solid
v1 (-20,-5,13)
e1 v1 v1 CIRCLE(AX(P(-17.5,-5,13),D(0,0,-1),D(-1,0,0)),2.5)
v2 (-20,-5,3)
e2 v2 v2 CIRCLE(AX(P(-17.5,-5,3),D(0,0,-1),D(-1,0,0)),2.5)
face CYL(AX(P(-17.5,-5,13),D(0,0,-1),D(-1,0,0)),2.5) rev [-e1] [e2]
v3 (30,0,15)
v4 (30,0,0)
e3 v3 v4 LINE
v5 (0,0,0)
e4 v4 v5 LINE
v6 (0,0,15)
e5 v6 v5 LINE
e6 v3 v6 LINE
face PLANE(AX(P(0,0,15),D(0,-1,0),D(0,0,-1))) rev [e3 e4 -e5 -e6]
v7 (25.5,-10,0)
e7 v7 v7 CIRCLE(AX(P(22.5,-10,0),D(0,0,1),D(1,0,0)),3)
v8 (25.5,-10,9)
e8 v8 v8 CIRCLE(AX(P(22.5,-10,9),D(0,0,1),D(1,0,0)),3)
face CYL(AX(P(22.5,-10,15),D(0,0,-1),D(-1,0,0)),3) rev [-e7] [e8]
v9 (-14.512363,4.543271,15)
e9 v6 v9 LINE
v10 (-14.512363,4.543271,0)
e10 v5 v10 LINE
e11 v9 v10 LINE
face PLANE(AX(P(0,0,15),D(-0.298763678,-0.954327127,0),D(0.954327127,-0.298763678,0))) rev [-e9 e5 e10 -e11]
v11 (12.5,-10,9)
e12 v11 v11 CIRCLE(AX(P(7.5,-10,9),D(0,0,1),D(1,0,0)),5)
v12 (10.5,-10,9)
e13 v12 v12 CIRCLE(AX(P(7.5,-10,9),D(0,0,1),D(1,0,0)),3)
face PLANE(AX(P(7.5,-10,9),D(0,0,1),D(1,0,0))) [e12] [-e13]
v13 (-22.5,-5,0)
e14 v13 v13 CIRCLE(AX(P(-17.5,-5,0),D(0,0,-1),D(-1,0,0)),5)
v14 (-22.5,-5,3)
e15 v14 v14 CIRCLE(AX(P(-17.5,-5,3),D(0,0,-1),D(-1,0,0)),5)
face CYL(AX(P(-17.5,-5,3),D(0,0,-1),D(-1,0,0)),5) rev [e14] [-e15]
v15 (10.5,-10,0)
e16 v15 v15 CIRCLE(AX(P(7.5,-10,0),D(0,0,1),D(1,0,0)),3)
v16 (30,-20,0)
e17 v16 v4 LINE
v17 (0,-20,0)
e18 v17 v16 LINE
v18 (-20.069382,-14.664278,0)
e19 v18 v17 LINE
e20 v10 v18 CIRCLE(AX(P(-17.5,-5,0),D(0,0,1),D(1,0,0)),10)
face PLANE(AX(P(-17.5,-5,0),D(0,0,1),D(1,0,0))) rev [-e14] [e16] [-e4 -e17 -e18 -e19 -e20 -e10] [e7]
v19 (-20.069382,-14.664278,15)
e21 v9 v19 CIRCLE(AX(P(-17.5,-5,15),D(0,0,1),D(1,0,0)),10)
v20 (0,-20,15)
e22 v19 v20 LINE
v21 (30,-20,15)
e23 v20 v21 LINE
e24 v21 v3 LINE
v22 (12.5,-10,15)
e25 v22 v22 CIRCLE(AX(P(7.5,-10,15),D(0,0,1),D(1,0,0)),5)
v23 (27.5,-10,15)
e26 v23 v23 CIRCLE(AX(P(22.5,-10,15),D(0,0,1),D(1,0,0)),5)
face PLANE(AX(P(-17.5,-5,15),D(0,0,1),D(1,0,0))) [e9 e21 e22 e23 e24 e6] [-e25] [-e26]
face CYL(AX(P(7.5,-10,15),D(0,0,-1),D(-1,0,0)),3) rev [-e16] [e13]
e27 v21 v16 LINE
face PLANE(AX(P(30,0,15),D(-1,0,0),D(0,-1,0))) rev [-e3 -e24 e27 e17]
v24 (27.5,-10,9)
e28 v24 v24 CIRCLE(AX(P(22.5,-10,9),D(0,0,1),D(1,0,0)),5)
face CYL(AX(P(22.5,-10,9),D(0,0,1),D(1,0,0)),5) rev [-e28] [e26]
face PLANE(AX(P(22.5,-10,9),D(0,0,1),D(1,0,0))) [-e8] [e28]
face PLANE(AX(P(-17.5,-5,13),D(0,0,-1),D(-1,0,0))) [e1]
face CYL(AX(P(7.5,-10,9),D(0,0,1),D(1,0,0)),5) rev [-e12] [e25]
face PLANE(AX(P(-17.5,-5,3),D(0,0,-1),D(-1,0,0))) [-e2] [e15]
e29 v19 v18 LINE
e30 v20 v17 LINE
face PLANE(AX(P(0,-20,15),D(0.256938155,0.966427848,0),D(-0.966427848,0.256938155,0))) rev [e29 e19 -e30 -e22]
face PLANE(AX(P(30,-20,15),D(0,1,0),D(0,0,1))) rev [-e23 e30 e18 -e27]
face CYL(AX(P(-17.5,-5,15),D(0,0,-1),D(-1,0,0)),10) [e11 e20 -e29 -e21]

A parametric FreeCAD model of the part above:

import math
import FreeCAD as App
import Part
import Sketcher

V = App.Vector
Q = App.Units.Quantity

doc = App.newDocument("Part")
body = doc.addObject("PartDesign::Body", "Body")

# Sketch on XY plane
sketch1 = body.newObject("Sketcher::SketchObject", "Sketch")
sketch1.AttachmentSupport = (doc.getObject("XY_Plane"), [""])
sketch1.MapMode = "FlatFace"
sketch1.addGeometry([
    Part.LineSegment(V(30, 0, 0), V(0, 0, 0)),  # 0
    Part.LineSegment(V(0, 0, 0), V(-14.512363, 4.543271, 0)),  # 1
    Part.ArcOfCircle(Part.Circle(V(-17.5, -5, 0), V(0, 0, 1), 10), math.radians(72.616638), math.radians(255.11154)),  # 2
    Part.LineSegment(V(-20.069382, -14.664278, 0), V(0, -20, 0)),  # 3
    Part.LineSegment(V(0, -20, 0), V(30, -20, 0)),  # 4
    Part.LineSegment(V(30, -20, 0), V(30, 0, 0)),  # 5
    Part.Circle(V(22.5, -10, 0), V(0, 0, 1), 3),  # 6
    Part.Circle(V(7.5, -10, 0), V(0, 0, 1), 3),  # 7
], False)
sketch1.addConstraint([
    Sketcher.Constraint("Coincident", 0, 2, 1, 1),
    Sketcher.Constraint("Tangent", 1, 2, 2, 1),
    Sketcher.Constraint("Tangent", 2, 2, 3, 1),
    Sketcher.Constraint("Coincident", 3, 2, 4, 1),
    Sketcher.Constraint("Coincident", 4, 2, 5, 1),
    Sketcher.Constraint("Coincident", 5, 2, 0, 1),
    Sketcher.Constraint("Horizontal", 0),
    Sketcher.Constraint("Horizontal", 4),
    Sketcher.Constraint("Vertical", 5),
    Sketcher.Constraint("Coincident", 0, 2, -1, 1),
    Sketcher.Constraint("Equal", 6, 7),
    Sketcher.Constraint("PointOnObject", 3, 2, -2),
    Sketcher.Constraint("Horizontal", 6, 3, 7, 3),
    Sketcher.Constraint("Diameter", 6, Q("6 mm")),
    Sketcher.Constraint("Radius", 2, Q("10 mm")),
    Sketcher.Constraint("DistanceX", 0, 2, 0, 1, Q("30 mm")),
    Sketcher.Constraint("DistanceY", 5, 1, 5, 2, Q("20 mm")),
    Sketcher.Constraint("DistanceY", 2, 3, -1, 1, Q("5 mm")),
    Sketcher.Constraint("DistanceY", 6, 3, -1, 1, Q("10 mm")),
    Sketcher.Constraint("DistanceX", 2, 3, 6, 3, Q("40 mm")),
    Sketcher.Constraint("DistanceX", 7, 3, 6, 3, Q("15 mm")),
    Sketcher.Constraint("DistanceX", 2, 3, -1, 1, Q("17.5 mm")),
])
pad1 = body.newObject("PartDesign::Pad", "Pad")
pad1.Profile = sketch1
pad1.Length = 15

# Sketch on XY plane
sketch2 = body.newObject("Sketcher::SketchObject", "Sketch001")
sketch2.AttachmentSupport = (doc.getObject("XY_Plane"), [""])
sketch2.MapMode = "FlatFace"
sketch2.AttachmentOffset = App.Placement(V(0, 0, 15), App.Rotation())
sketch2.addGeometry([
    Part.Circle(V(7.5, -10, 0), V(0, 0, 1), 5),
    Part.Circle(V(22.5, -10, 0), V(0, 0, 1), 5),
], False)
sketch2.addConstraint([
    Sketcher.Constraint("Equal", 0, 1),
    Sketcher.Constraint("Horizontal", 0, 3, 1, 3),
    Sketcher.Constraint("Diameter", 0, Q("10 mm")),
    Sketcher.Constraint("DistanceY", 0, 3, -1, 1, Q("10 mm")),
    Sketcher.Constraint("DistanceX", 0, 3, 1, 3, Q("15 mm")),
    Sketcher.Constraint("DistanceX", -1, 1, 0, 3, Q("7.5 mm")),
])
pocket1 = body.newObject("PartDesign::Pocket", "Pocket")
pocket1.Profile = sketch2
pocket1.Length = 6

# Sketch on XY plane
sketch3 = body.newObject("Sketcher::SketchObject", "Sketch002")
sketch3.AttachmentSupport = (doc.getObject("XY_Plane"), [""])
sketch3.MapMode = "FlatFace"
sketch3.addGeometry(Part.Circle(V(-17.5, -5, 0), V(0, 0, 1), 5), False)
sketch3.addConstraint([
    Sketcher.Constraint("Diameter", 0, Q("10 mm")),
    Sketcher.Constraint("DistanceY", 0, 3, -1, 1, Q("5 mm")),
    Sketcher.Constraint("DistanceX", 0, 3, -1, 1, Q("17.5 mm")),
])
pocket2 = body.newObject("PartDesign::Pocket", "Pocket001")
pocket2.Profile = sketch3
pocket2.Length = 3
pocket2.Reversed = True

# Sketch on XY plane
sketch4 = body.newObject("Sketcher::SketchObject", "Sketch003")
sketch4.AttachmentSupport = (doc.getObject("XY_Plane"), [""])
sketch4.MapMode = "FlatFace"
sketch4.AttachmentOffset = App.Placement(V(0, 0, 3), App.Rotation())
sketch4.addGeometry(Part.Circle(V(-17.5, -5, 0), V(0, 0, 1), 2.5), False)
sketch4.addConstraint([
    Sketcher.Constraint("Diameter", 0, Q("5 mm")),
    Sketcher.Constraint("DistanceY", 0, 3, -1, 1, Q("5 mm")),
    Sketcher.Constraint("DistanceX", 0, 3, -1, 1, Q("17.5 mm")),
])
pocket3 = body.newObject("PartDesign::Pocket", "Pocket002")
pocket3.Profile = sketch4
pocket3.Length = 10
pocket3.Reversed = True

doc.recompute()
